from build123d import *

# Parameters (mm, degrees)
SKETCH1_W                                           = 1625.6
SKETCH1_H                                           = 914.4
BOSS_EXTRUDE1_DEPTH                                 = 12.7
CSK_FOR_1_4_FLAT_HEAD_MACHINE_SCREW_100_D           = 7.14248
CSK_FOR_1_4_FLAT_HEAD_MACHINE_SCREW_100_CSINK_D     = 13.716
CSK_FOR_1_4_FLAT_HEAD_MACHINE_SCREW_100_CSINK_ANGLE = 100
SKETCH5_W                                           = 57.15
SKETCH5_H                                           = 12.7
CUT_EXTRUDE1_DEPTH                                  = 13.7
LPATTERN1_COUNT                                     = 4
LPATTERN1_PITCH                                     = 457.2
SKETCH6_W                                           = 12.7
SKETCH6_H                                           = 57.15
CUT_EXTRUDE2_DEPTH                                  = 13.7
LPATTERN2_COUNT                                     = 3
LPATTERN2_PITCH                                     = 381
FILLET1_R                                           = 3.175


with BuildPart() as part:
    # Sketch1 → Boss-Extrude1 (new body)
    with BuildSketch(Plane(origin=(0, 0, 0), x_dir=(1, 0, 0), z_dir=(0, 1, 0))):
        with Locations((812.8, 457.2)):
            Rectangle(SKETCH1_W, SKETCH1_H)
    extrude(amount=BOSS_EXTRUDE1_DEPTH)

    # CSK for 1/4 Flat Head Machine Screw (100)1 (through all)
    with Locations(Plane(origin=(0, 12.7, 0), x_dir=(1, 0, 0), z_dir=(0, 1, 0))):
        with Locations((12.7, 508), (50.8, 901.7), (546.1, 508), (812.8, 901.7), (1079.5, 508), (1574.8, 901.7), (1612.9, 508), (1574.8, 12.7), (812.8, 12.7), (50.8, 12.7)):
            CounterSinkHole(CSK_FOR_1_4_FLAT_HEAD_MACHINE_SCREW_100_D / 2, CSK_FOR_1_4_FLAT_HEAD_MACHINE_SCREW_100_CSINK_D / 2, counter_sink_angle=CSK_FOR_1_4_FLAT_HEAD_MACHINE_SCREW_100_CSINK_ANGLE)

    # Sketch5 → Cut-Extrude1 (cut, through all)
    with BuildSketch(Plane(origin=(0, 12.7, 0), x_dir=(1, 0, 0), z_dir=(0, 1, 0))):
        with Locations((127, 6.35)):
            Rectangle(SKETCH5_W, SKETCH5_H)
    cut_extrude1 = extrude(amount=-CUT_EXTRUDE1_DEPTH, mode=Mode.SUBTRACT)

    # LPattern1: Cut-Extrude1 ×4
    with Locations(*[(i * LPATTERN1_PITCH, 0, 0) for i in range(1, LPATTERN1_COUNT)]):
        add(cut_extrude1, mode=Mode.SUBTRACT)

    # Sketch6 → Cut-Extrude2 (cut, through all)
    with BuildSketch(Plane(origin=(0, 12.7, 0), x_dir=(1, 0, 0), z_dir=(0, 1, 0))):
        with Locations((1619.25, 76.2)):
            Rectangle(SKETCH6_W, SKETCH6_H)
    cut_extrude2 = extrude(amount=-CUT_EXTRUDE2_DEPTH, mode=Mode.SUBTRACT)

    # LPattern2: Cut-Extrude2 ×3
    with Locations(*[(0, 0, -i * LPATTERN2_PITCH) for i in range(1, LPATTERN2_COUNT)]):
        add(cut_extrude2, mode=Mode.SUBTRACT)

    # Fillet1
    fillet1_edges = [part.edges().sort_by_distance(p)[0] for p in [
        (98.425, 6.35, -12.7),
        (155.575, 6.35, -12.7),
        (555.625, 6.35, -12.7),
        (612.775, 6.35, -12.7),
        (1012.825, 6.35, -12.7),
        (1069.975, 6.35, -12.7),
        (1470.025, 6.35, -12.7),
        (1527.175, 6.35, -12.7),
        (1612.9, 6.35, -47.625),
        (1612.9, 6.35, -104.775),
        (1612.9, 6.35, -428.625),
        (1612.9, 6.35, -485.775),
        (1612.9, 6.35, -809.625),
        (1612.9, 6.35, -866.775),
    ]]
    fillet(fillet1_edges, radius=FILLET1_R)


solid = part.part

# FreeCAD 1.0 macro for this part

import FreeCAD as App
import Part
import Sketcher

V = App.Vector
Q = App.Units.Quantity


def edges_at(feature, points):
    """Names of the edges that pass closest to the given points."""
    edges = feature.Shape.Edges
    near = lambda p: min(range(len(edges)), key=lambda i: edges[i].distToShape(Part.Vertex(*p))[0])
    return sorted({f"Edge{near(p) + 1}" for p in points})

doc = App.newDocument("Part")
body = doc.addObject("PartDesign::Body", "Body")

# Sketch on XZ plane
sketch1 = doc.addObject("Sketcher::SketchObject", "Sketch")
body.addObject(sketch1)
sketch1.AttachmentSupport = (doc.XZ_Plane, [""])
sketch1.MapMode = "FlatFace"
sketch1.addGeometry(Part.LineSegment(V(0, -914.4, 0), V(0, 0, 0)), False)
sketch1.addGeometry(Part.LineSegment(V(0, 0, 0), V(1625.6, 0, 0)), False)
sketch1.addGeometry(Part.LineSegment(V(1625.6, 0, 0), V(1625.6, -914.4, 0)), False)
sketch1.addGeometry(Part.LineSegment(V(1625.6, -914.4, 0), V(0, -914.4, 0)), False)
sketch1.addConstraint(Sketcher.Constraint("Coincident", 0, 2, 1, 1))
sketch1.addConstraint(Sketcher.Constraint("Coincident", 1, 2, 2, 1))
sketch1.addConstraint(Sketcher.Constraint("Coincident", 2, 2, 3, 1))
sketch1.addConstraint(Sketcher.Constraint("Coincident", 3, 2, 0, 1))
sketch1.addConstraint(Sketcher.Constraint("Vertical", 0))
sketch1.addConstraint(Sketcher.Constraint("Horizontal", 1))
sketch1.addConstraint(Sketcher.Constraint("Vertical", 2))
sketch1.addConstraint(Sketcher.Constraint("Horizontal", 3))
sketch1.addConstraint(Sketcher.Constraint("Coincident", 0, 2, -1, 1))
sketch1.addConstraint(Sketcher.Constraint("DistanceX", 1, 1, 1, 2, Q("64 in")))
sketch1.addConstraint(Sketcher.Constraint("DistanceY", 0, 1, 0, 2, Q("36 in")))
pad1 = doc.addObject("PartDesign::Pad", "Pad")
body.addObject(pad1)
pad1.Profile = sketch1
pad1.Length = Q("0.5 in")
pad1.Reversed = True

# Sketch on XZ plane
sketch2 = doc.addObject("Sketcher::SketchObject", "Sketch001")
body.addObject(sketch2)
sketch2.AttachmentSupport = (doc.XZ_Plane, [""])
sketch2.MapMode = "FlatFace"
sketch2.AttachmentOffset = App.Placement(V(0, 0, -0.5 * 25.4), App.Rotation())
sketch2.addGeometry(Part.Circle(V(12.7, -508, 0), V(0, 0, 1), 3.57124), False)
sketch2.addGeometry(Part.Circle(V(50.8, -901.7, 0), V(0, 0, 1), 3.57124), False)
sketch2.addGeometry(Part.Circle(V(546.1, -508, 0), V(0, 0, 1), 3.57124), False)
sketch2.addGeometry(Part.Circle(V(812.8, -901.7, 0), V(0, 0, 1), 3.57124), False)
sketch2.addGeometry(Part.Circle(V(1079.5, -508, 0), V(0, 0, 1), 3.57124), False)
sketch2.addGeometry(Part.Circle(V(1574.8, -901.7, 0), V(0, 0, 1), 3.57124), False)
sketch2.addGeometry(Part.Circle(V(1612.9, -508, 0), V(0, 0, 1), 3.57124), False)
sketch2.addGeometry(Part.Circle(V(1574.8, -12.7, 0), V(0, 0, 1), 3.57124), False)
sketch2.addGeometry(Part.Circle(V(812.8, -12.7, 0), V(0, 0, 1), 3.57124), False)
sketch2.addGeometry(Part.Circle(V(50.8, -12.7, 0), V(0, 0, 1), 3.57124), False)
sketch2.addConstraint(Sketcher.Constraint("Equal", 0, 1))
sketch2.addConstraint(Sketcher.Constraint("Equal", 1, 2))
sketch2.addConstraint(Sketcher.Constraint("Equal", 2, 3))
sketch2.addConstraint(Sketcher.Constraint("Equal", 3, 4))
sketch2.addConstraint(Sketcher.Constraint("Equal", 4, 5))
sketch2.addConstraint(Sketcher.Constraint("Equal", 5, 6))
sketch2.addConstraint(Sketcher.Constraint("Equal", 6, 7))
sketch2.addConstraint(Sketcher.Constraint("Equal", 7, 8))
sketch2.addConstraint(Sketcher.Constraint("Equal", 8, 9))
sketch2.addConstraint(Sketcher.Constraint("Horizontal", 0, 3, 2, 3))
sketch2.addConstraint(Sketcher.Constraint("Horizontal", 1, 3, 3, 3))
sketch2.addConstraint(Sketcher.Constraint("Horizontal", 2, 3, 4, 3))
sketch2.addConstraint(Sketcher.Constraint("Horizontal", 3, 3, 5, 3))
sketch2.addConstraint(Sketcher.Constraint("Horizontal", 4, 3, 6, 3))
sketch2.addConstraint(Sketcher.Constraint("Horizontal", 7, 3, 8, 3))
sketch2.addConstraint(Sketcher.Constraint("Horizontal", 8, 3, 9, 3))
sketch2.addConstraint(Sketcher.Constraint("Vertical", 5, 3, 7, 3))
sketch2.addConstraint(Sketcher.Constraint("Vertical", 3, 3, 8, 3))
sketch2.addConstraint(Sketcher.Constraint("Vertical", 1, 3, 9, 3))
sketch2.addConstraint(Sketcher.Constraint("DistanceY", 0, 3, -1, 1, Q("20 in")))
sketch2.addConstraint(Sketcher.Constraint("DistanceX", -1, 1, 1, 3, Q("2 in")))
sketch2.addConstraint(Sketcher.Constraint("DistanceX", -1, 1, 3, 3, Q("32 in")))
sketch2.addConstraint(Sketcher.Constraint("DistanceX", -1, 1, 5, 3, Q("62 in")))
sketch2.addConstraint(Sketcher.Constraint("DistanceX", 0, 3, 2, 3, Q("21 in")))
sketch2.addConstraint(Sketcher.Constraint("DistanceX", 2, 3, 4, 3, Q("21 in")))
sketch2.addConstraint(Sketcher.Constraint("DistanceX", 4, 3, 6, 3, Q("21 in")))
sketch2.addConstraint(Sketcher.Constraint("DistanceY", 5, 3, 7, 3, Q("35 in")))
sketch2.addConstraint(Sketcher.Constraint("Diameter", 0, Q("0.2812 in")))
sketch2.addConstraint(Sketcher.Constraint("DistanceX", -1, 1, 0, 3, Q("0.5 in")))
sketch2.addConstraint(Sketcher.Constraint("DistanceY", 1, 3, -1, 1, Q("35.5 in")))
doc.recompute()
hole = doc.addObject("PartDesign::Hole", "Hole")
body.addObject(hole)
hole.Profile = sketch2
hole.ThreadType = "None"
hole.Diameter = Q("0.2812 in")
hole.DepthType = "ThroughAll"
hole.HoleCutType = "Countersink"
hole.HoleCutDiameter = Q("0.54 in")
hole.HoleCutCountersinkAngle = 100
hole.Reversed = True

# Sketch on XZ plane
sketch3 = doc.addObject("Sketcher::SketchObject", "Sketch002")
body.addObject(sketch3)
sketch3.AttachmentSupport = (doc.XZ_Plane, [""])
sketch3.MapMode = "FlatFace"
sketch3.AttachmentOffset = App.Placement(V(0, 0, -0.5 * 25.4), App.Rotation())
sketch3.addGeometry(Part.LineSegment(V(98.425, -12.7, 0), V(98.425, 0, 0)), False)
sketch3.addGeometry(Part.LineSegment(V(98.425, 0, 0), V(155.575, 0, 0)), False)
sketch3.addGeometry(Part.LineSegment(V(155.575, 0, 0), V(155.575, -12.7, 0)), False)
sketch3.addGeometry(Part.LineSegment(V(155.575, -12.7, 0), V(98.425, -12.7, 0)), False)
sketch3.addConstraint(Sketcher.Constraint("Coincident", 0, 2, 1, 1))
sketch3.addConstraint(Sketcher.Constraint("Coincident", 1, 2, 2, 1))
sketch3.addConstraint(Sketcher.Constraint("Coincident", 2, 2, 3, 1))
sketch3.addConstraint(Sketcher.Constraint("Coincident", 3, 2, 0, 1))
sketch3.addConstraint(Sketcher.Constraint("Vertical", 0))
sketch3.addConstraint(Sketcher.Constraint("Horizontal", 1))
sketch3.addConstraint(Sketcher.Constraint("Vertical", 2))
sketch3.addConstraint(Sketcher.Constraint("Horizontal", 3))
sketch3.addConstraint(Sketcher.Constraint("PointOnObject", 0, 2, -1))
sketch3.addConstraint(Sketcher.Constraint("DistanceY", 0, 1, 0, 2, Q("0.5 in")))
sketch3.addConstraint(Sketcher.Constraint("DistanceX", 1, 1, 1, 2, Q("2.25 in")))
sketch3.addConstraint(Sketcher.Constraint("DistanceX", -1, 1, 0, 2, Q("3.875 in")))
pocket1 = doc.addObject("PartDesign::Pocket", "Pocket")
body.addObject(pocket1)
pocket1.Profile = sketch3
pocket1.Type = "ThroughAll"
pocket1.Reversed = True
doc.recompute()

linearpattern = doc.addObject("PartDesign::LinearPattern", "LinearPattern")
body.addObject(linearpattern)
linearpattern.Originals = [pocket1]
linearpattern.Direction = (doc.X_Axis, [""])
linearpattern.Mode = "offset"
linearpattern.Offset = Q("18 in")
linearpattern.Occurrences = 4
body.Tip = linearpattern

# Sketch on XZ plane
sketch4 = doc.addObject("Sketcher::SketchObject", "Sketch003")
body.addObject(sketch4)
sketch4.AttachmentSupport = (doc.XZ_Plane, [""])
sketch4.MapMode = "FlatFace"
sketch4.AttachmentOffset = App.Placement(V(0, 0, -0.5 * 25.4), App.Rotation())
sketch4.addGeometry(Part.LineSegment(V(1612.9, -104.775, 0), V(1612.9, -47.625, 0)), False)
sketch4.addGeometry(Part.LineSegment(V(1612.9, -47.625, 0), V(1625.6, -47.625, 0)), False)
sketch4.addGeometry(Part.LineSegment(V(1625.6, -47.625, 0), V(1625.6, -104.775, 0)), False)
sketch4.addGeometry(Part.LineSegment(V(1625.6, -104.775, 0), V(1612.9, -104.775, 0)), False)
sketch4.addConstraint(Sketcher.Constraint("Coincident", 0, 2, 1, 1))
sketch4.addConstraint(Sketcher.Constraint("Coincident", 1, 2, 2, 1))
sketch4.addConstraint(Sketcher.Constraint("Coincident", 2, 2, 3, 1))
sketch4.addConstraint(Sketcher.Constraint("Coincident", 3, 2, 0, 1))
sketch4.addConstraint(Sketcher.Constraint("Vertical", 0))
sketch4.addConstraint(Sketcher.Constraint("Horizontal", 1))
sketch4.addConstraint(Sketcher.Constraint("Vertical", 2))
sketch4.addConstraint(Sketcher.Constraint("Horizontal", 3))
sketch4.addConstraint(Sketcher.Constraint("DistanceX", 1, 1, 1, 2, Q("0.5 in")))
sketch4.addConstraint(Sketcher.Constraint("DistanceX", -1, 1, 1, 2, Q("64 in")))
sketch4.addConstraint(Sketcher.Constraint("DistanceY", 0, 1, 0, 2, Q("2.25 in")))
sketch4.addConstraint(Sketcher.Constraint("DistanceY", 0, 2, -1, 1, Q("1.875 in")))
pocket2 = doc.addObject("PartDesign::Pocket", "Pocket001")
body.addObject(pocket2)
pocket2.Profile = sketch4
pocket2.Type = "ThroughAll"
pocket2.Reversed = True
doc.recompute()

linearpattern2 = doc.addObject("PartDesign::LinearPattern", "LinearPattern001")
body.addObject(linearpattern2)
linearpattern2.Originals = [pocket2]
linearpattern2.Direction = (doc.Z_Axis, [""])
linearpattern2.Mode = "offset"
linearpattern2.Offset = Q("15 in")
linearpattern2.Occurrences = 3
linearpattern2.Reversed = True
body.Tip = linearpattern2
doc.recompute()

fillet = doc.addObject("PartDesign::Fillet", "Fillet")
body.addObject(fillet)
fillet.Base = (linearpattern2, edges_at(linearpattern2, [
    (98.425, 6.35, -12.7),
    (155.575, 6.35, -12.7),
    (555.625, 6.35, -12.7),
    (612.775, 6.35, -12.7),
    (1012.825, 6.35, -12.7),
    (1069.975, 6.35, -12.7),
    (1470.025, 6.35, -12.7),
    (1527.175, 6.35, -12.7),
    (1612.9, 6.35, -47.625),
    (1612.9, 6.35, -104.775),
    (1612.9, 6.35, -428.625),
    (1612.9, 6.35, -485.775),
    (1612.9, 6.35, -809.625),
    (1612.9, 6.35, -866.775),
]))
fillet.Radius = Q("0.125 in")

doc.recompute()
